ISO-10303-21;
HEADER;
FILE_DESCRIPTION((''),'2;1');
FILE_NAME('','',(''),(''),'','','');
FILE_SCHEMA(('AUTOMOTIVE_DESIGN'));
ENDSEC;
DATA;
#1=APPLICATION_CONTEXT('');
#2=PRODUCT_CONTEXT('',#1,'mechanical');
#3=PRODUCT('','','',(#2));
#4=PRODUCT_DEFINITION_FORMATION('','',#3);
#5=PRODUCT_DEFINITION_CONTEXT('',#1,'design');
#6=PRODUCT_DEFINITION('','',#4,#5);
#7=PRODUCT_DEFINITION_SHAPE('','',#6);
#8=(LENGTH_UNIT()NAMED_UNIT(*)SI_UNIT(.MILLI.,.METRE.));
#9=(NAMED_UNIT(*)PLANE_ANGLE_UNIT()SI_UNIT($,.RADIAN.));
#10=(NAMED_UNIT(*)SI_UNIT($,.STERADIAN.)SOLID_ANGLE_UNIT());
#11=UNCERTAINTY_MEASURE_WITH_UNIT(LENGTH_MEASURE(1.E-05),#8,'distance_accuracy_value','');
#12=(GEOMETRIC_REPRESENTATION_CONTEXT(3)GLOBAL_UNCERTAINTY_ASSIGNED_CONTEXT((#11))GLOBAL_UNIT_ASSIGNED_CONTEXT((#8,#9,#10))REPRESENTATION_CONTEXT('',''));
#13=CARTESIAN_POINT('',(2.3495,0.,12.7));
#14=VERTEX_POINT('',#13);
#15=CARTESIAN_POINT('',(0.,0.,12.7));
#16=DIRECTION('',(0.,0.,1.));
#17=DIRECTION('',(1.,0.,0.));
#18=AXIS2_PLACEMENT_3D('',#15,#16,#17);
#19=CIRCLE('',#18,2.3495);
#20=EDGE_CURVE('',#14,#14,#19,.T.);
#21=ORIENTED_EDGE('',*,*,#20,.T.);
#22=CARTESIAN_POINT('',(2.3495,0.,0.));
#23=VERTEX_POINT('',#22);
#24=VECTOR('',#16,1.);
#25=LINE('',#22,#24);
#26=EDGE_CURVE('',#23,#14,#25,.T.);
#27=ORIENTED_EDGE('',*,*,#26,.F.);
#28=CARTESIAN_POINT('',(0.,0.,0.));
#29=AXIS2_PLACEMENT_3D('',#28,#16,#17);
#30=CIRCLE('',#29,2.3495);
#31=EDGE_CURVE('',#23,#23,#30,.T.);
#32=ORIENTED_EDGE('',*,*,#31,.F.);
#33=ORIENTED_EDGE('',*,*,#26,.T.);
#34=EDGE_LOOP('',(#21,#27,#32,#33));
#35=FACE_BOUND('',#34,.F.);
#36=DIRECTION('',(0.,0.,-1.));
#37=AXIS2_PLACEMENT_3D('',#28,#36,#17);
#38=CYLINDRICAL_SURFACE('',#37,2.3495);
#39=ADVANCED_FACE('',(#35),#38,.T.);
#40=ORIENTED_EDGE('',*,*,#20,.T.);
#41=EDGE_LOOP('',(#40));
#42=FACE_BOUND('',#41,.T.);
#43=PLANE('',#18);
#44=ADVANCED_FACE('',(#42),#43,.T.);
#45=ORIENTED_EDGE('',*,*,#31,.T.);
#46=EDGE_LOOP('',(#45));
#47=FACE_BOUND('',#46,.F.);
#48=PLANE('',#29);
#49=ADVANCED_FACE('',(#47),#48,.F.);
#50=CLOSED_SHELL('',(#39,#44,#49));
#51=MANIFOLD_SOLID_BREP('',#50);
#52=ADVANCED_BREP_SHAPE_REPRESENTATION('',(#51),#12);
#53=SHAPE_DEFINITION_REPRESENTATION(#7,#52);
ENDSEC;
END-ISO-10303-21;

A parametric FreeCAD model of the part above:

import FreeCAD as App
import Part
import Sketcher
from FreeCAD import Vector
Q = App.Units.Quantity

doc = App.newDocument("Part")
body = doc.addObject("PartDesign::Body", "Body")

# Sketch on XY plane
sketch1 = body.newObject("Sketcher::SketchObject", "Sketch")
sketch1.AttachmentSupport = (doc.getObject("XY_Plane"), [""])
sketch1.MapMode = "FlatFace"
sketch1.addGeometry(Part.Circle(Vector(0, 0, 0), Vector(0, 0, 1), 2.3), False)
sketch1.addConstraint(Sketcher.Constraint("Coincident", 0, 3, -1, 1))
sketch1.addConstraint(Sketcher.Constraint("Diameter", 0, Q("0.185 in")))
pad1 = body.newObject("PartDesign::Pad", "Pad")
pad1.Profile = sketch1
pad1.Length = Q("0.5 in")

doc.recompute()
